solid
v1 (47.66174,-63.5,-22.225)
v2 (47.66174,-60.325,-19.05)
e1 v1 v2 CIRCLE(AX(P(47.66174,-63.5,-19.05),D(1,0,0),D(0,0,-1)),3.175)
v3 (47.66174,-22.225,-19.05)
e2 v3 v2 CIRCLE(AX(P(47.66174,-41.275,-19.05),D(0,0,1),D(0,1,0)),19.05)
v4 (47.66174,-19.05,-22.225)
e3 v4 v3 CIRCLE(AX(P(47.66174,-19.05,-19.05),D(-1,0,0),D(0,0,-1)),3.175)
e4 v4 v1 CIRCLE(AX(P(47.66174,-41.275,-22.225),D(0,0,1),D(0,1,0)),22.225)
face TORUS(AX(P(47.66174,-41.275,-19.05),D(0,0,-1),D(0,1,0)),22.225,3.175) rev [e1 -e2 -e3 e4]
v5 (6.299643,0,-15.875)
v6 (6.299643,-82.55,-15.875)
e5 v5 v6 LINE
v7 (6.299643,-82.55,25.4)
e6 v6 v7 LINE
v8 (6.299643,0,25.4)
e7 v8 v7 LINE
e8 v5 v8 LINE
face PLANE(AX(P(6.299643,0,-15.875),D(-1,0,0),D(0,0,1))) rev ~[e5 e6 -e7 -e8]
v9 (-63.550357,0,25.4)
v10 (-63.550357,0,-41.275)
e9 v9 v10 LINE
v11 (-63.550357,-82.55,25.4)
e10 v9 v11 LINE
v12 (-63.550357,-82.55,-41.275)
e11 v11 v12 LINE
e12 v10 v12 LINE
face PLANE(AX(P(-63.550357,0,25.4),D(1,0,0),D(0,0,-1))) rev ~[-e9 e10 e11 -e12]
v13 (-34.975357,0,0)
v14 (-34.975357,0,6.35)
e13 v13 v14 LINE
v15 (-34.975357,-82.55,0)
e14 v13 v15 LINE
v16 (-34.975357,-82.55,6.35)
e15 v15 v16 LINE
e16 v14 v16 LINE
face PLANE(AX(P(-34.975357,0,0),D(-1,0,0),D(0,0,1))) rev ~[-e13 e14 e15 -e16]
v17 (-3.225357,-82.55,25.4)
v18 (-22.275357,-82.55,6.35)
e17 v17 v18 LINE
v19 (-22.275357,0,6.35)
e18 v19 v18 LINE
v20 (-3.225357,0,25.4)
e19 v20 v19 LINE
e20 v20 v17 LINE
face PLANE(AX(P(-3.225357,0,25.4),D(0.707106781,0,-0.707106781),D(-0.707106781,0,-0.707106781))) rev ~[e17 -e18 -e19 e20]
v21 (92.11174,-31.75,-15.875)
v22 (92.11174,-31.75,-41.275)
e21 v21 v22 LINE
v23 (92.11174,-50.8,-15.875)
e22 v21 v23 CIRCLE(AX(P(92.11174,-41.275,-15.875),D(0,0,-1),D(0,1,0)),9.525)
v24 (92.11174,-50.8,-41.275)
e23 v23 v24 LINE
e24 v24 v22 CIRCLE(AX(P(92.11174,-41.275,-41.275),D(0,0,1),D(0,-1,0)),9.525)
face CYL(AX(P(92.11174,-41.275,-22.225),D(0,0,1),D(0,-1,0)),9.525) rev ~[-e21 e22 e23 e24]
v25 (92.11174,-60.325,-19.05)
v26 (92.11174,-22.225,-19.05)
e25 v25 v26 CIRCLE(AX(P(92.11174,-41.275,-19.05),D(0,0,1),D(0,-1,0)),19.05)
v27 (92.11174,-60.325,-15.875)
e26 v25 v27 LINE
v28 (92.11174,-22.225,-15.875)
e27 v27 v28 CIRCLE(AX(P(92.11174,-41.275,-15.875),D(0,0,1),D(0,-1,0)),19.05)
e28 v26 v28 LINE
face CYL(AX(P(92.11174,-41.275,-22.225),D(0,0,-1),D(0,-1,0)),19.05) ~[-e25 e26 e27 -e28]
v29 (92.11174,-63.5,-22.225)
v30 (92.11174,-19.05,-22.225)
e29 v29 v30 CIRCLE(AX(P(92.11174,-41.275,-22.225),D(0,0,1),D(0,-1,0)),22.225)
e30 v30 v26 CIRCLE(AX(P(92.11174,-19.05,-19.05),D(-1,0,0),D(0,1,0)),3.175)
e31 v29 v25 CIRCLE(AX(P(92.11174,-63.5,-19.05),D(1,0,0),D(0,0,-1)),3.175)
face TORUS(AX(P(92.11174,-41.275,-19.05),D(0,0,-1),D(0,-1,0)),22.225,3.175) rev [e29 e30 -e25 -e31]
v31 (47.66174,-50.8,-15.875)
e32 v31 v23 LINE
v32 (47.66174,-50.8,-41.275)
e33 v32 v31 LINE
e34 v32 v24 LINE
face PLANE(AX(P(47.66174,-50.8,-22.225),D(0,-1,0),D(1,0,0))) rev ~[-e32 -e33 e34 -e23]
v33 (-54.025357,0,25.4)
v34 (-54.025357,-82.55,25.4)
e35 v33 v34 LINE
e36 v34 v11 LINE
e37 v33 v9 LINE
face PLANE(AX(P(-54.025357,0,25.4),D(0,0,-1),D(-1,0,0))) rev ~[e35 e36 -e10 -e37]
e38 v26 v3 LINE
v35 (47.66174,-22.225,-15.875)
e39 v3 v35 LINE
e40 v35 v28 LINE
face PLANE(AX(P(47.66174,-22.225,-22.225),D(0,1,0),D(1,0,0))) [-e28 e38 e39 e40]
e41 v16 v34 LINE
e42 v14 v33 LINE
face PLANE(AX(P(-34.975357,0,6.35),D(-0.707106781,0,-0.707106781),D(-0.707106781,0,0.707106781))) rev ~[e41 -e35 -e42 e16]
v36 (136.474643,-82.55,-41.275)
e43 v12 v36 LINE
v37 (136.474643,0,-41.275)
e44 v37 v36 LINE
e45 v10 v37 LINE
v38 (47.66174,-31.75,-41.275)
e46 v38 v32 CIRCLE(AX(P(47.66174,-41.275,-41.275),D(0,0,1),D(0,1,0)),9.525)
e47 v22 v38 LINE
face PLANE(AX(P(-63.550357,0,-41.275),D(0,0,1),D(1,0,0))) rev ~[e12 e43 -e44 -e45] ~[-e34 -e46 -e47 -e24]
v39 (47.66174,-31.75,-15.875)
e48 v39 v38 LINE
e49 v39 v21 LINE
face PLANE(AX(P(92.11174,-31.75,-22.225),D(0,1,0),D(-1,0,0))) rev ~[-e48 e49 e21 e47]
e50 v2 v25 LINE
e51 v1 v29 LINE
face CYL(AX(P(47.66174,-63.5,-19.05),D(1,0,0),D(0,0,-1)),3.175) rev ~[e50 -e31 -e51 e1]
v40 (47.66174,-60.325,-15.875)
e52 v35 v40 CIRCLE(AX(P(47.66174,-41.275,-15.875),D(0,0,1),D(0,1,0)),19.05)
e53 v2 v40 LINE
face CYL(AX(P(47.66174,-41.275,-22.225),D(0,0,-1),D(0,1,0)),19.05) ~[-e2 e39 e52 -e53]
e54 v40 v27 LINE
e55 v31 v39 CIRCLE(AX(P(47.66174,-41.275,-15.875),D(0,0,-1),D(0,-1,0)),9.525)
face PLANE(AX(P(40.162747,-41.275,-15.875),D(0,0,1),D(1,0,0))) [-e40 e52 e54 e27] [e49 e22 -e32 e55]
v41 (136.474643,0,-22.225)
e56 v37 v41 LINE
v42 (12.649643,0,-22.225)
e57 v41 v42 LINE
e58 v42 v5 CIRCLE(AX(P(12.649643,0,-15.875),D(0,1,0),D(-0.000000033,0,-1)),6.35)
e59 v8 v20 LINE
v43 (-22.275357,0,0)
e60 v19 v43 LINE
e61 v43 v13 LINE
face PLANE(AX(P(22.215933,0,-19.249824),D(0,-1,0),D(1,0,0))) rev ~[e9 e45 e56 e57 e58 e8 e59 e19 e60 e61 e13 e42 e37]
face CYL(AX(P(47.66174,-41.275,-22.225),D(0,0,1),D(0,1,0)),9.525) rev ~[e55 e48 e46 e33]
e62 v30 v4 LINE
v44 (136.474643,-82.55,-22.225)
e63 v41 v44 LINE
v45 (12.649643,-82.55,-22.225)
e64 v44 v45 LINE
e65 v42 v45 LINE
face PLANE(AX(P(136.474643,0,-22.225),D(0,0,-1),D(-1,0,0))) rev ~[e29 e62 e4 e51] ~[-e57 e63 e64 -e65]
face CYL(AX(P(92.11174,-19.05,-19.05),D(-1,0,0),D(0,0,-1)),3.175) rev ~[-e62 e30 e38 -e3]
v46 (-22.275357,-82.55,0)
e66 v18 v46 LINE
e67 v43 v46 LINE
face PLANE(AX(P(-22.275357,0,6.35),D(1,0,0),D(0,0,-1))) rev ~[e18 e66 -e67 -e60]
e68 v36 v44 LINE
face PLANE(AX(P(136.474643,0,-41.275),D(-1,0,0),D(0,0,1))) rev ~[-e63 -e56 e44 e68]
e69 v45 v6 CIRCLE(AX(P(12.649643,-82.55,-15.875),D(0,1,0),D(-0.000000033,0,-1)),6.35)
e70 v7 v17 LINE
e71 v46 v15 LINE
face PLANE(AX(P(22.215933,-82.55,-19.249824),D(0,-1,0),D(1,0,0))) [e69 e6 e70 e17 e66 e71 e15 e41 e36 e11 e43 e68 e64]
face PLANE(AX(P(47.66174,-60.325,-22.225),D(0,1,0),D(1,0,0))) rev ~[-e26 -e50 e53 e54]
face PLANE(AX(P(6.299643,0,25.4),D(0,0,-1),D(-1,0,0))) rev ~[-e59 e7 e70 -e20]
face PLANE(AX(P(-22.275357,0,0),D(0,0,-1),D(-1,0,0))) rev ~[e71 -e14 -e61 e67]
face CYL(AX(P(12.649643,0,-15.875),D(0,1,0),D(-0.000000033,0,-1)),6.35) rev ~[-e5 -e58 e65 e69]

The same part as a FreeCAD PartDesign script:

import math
import FreeCAD as App
import Part
import Sketcher
from FreeCAD import Vector
Q = App.Units.Quantity


def edges_at(feature, points):
    """Names of the edges that pass closest to the given points."""
    edges = feature.Shape.Edges
    near = lambda p: min(range(len(edges)), key=lambda i: edges[i].distToShape(Part.Vertex(*p))[0])
    return sorted({f"Edge{near(p) + 1}" for p in points})

doc = App.newDocument("Part")
body = doc.addObject("PartDesign::Body", "Body")

# Sketch on XZ plane
sketch1 = body.newObject("Sketcher::SketchObject", "Sketch")
sketch1.AttachmentSupport = (doc.getObject("XZ_Plane"), [""])
sketch1.MapMode = "FlatFace"
sketch1.addGeometry(Part.LineSegment(Vector(-54.025357, 25.4, 0), Vector(-63.550357, 25.4, 0)), False)
sketch1.addGeometry(Part.LineSegment(Vector(-63.550357, 25.4, 0), Vector(-63.550357, -41.275, 0)), False)
sketch1.addGeometry(Part.LineSegment(Vector(-63.550357, -41.275, 0), Vector(136.474643, -41.275, 0)), False)
sketch1.addGeometry(Part.LineSegment(Vector(136.474643, -41.275, 0), Vector(136.474643, -22.225, 0)), False)
sketch1.addGeometry(Part.LineSegment(Vector(136.474643, -22.225, 0), Vector(12.649643, -22.225, 0)), False)
sketch1.addGeometry(Part.ArcOfCircle(Part.Circle(Vector(12.649643, -15.875, 0), Vector(0, 0, 1), 6.35), math.radians(-179.999998), math.radians(-90.000002)), False)
sketch1.addGeometry(Part.LineSegment(Vector(6.299643, -15.875, 0), Vector(6.299643, 25.4, 0)), False)
sketch1.addGeometry(Part.LineSegment(Vector(6.299643, 25.4, 0), Vector(-3.225357, 25.4, 0)), False)
sketch1.addGeometry(Part.LineSegment(Vector(-3.225357, 25.4, 0), Vector(-22.275357, 6.35, 0)), False)
sketch1.addGeometry(Part.LineSegment(Vector(-22.275357, 6.35, 0), Vector(-22.275357, 0, 0)), False)
sketch1.addGeometry(Part.LineSegment(Vector(-22.275357, 0, 0), Vector(-34.975357, 0, 0)), False)
sketch1.addGeometry(Part.LineSegment(Vector(-34.975357, 0, 0), Vector(-34.975357, 6.35, 0)), False)
sketch1.addGeometry(Part.LineSegment(Vector(-34.975357, 6.35, 0), Vector(-54.025357, 25.4, 0)), False)
sketch1.addConstraint(Sketcher.Constraint("Coincident", 0, 2, 1, 1))
sketch1.addConstraint(Sketcher.Constraint("Coincident", 1, 2, 2, 1))
sketch1.addConstraint(Sketcher.Constraint("Coincident", 2, 2, 3, 1))
sketch1.addConstraint(Sketcher.Constraint("Coincident", 3, 2, 4, 1))
sketch1.addConstraint(Sketcher.Constraint("Tangent", 4, 2, 5, 2))
sketch1.addConstraint(Sketcher.Constraint("Tangent", 5, 1, 6, 1))
sketch1.addConstraint(Sketcher.Constraint("Coincident", 6, 2, 7, 1))
sketch1.addConstraint(Sketcher.Constraint("Coincident", 7, 2, 8, 1))
sketch1.addConstraint(Sketcher.Constraint("Coincident", 8, 2, 9, 1))
sketch1.addConstraint(Sketcher.Constraint("Coincident", 9, 2, 10, 1))
sketch1.addConstraint(Sketcher.Constraint("Coincident", 10, 2, 11, 1))
sketch1.addConstraint(Sketcher.Constraint("Coincident", 11, 2, 12, 1))
sketch1.addConstraint(Sketcher.Constraint("Coincident", 12, 2, 0, 1))
sketch1.addConstraint(Sketcher.Constraint("Horizontal", 0))
sketch1.addConstraint(Sketcher.Constraint("Vertical", 1))
sketch1.addConstraint(Sketcher.Constraint("Horizontal", 2))
sketch1.addConstraint(Sketcher.Constraint("Vertical", 3))
sketch1.addConstraint(Sketcher.Constraint("Horizontal", 4))
sketch1.addConstraint(Sketcher.Constraint("Vertical", 6))
sketch1.addConstraint(Sketcher.Constraint("Horizontal", 7))
sketch1.addConstraint(Sketcher.Constraint("Vertical", 9))
sketch1.addConstraint(Sketcher.Constraint("Horizontal", 10))
sketch1.addConstraint(Sketcher.Constraint("Vertical", 11))
sketch1.addConstraint(Sketcher.Constraint("PointOnObject", 9, 2, -1))
sketch1.addConstraint(Sketcher.Constraint("Perpendicular", 8, 12))
sketch1.addConstraint(Sketcher.Constraint("Horizontal", 0, 2, 6, 2))
sketch1.addConstraint(Sketcher.Constraint("Horizontal", 8, 2, 11, 2))
sketch1.addConstraint(Sketcher.Constraint("Equal", 0, 7))
sketch1.addConstraint(Sketcher.Constraint("Equal", 8, 12))
sketch1.addConstraint(Sketcher.Constraint("Radius", 5, Q("0.25 in")))
sketch1.addConstraint(Sketcher.Constraint("DistanceX", 10, 2, 10, 1, Q("0.5 in")))
sketch1.addConstraint(Sketcher.Constraint("DistanceY", -1, 1, 0, 2, Q("1 in")))
sketch1.addConstraint(Sketcher.Constraint("DistanceX", 0, 2, 5, 3, Q("3 in")))
sketch1.addConstraint(Sketcher.Constraint("DistanceY", 1, 2, 5, 3, Q("1 in")))
sketch1.addConstraint(Sketcher.Constraint("DistanceY", 9, 2, 9, 1, Q("0.25 in")))
sketch1.addConstraint(Sketcher.Constraint("DistanceX", 2, 1, 2, 2, Q("7.875 in")))
sketch1.addConstraint(Sketcher.Constraint("DistanceY", 1, 2, 1, 1, Q("2.625 in")))
sketch1.addConstraint(Sketcher.Constraint("DistanceX", -1, 1, 5, 3, 12.649643))
pad1 = body.newObject("PartDesign::Pad", "Pad")
pad1.Profile = sketch1
pad1.Length = Q("3.25 in")

# Sketch on XY plane
sketch2 = body.newObject("Sketcher::SketchObject", "Sketch001")
sketch2.AttachmentSupport = (doc.getObject("XY_Plane"), [""])
sketch2.MapMode = "FlatFace"
sketch2.AttachmentOffset = App.Placement(Vector(0, 0, -0.875 * 25.4), App.Rotation())
sketch2.addGeometry(Part.ArcOfCircle(Part.Circle(Vector(47.66174, -41.275, 0), Vector(0, 0, 1), 19.05), math.radians(90), math.radians(270)), False)
sketch2.addGeometry(Part.LineSegment(Vector(47.66174, -60.325, 0), Vector(92.11174, -60.325, 0)), False)
sketch2.addGeometry(Part.ArcOfCircle(Part.Circle(Vector(92.11174, -41.275, 0), Vector(0, 0, 1), 19.05), math.radians(-90), math.radians(90)), False)
sketch2.addGeometry(Part.LineSegment(Vector(92.11174, -22.225, 0), Vector(47.66174, -22.225, 0)), False)
sketch2.addGeometry(Part.ArcOfCircle(Part.Circle(Vector(47.66174, -41.275, 0), Vector(0, 0, 1), 9.525), math.radians(90), math.radians(270)), False)
sketch2.addGeometry(Part.LineSegment(Vector(47.66174, -31.75, 0), Vector(92.11174, -31.75, 0)), False)
sketch2.addGeometry(Part.ArcOfCircle(Part.Circle(Vector(92.11174, -41.275, 0), Vector(0, 0, 1), 9.525), math.radians(-90), math.radians(90)), False)
sketch2.addGeometry(Part.LineSegment(Vector(92.11174, -50.8, 0), Vector(47.66174, -50.8, 0)), False)
sketch2.addConstraint(Sketcher.Constraint("Tangent", 0, 2, 1, 1))
sketch2.addConstraint(Sketcher.Constraint("Tangent", 1, 2, 2, 1))
sketch2.addConstraint(Sketcher.Constraint("Tangent", 2, 2, 3, 1))
sketch2.addConstraint(Sketcher.Constraint("Tangent", 3, 2, 0, 1))
sketch2.addConstraint(Sketcher.Constraint("Tangent", 4, 1, 5, 1))
sketch2.addConstraint(Sketcher.Constraint("Tangent", 5, 2, 6, 2))
sketch2.addConstraint(Sketcher.Constraint("Tangent", 6, 1, 7, 1))
sketch2.addConstraint(Sketcher.Constraint("Tangent", 7, 2, 4, 2))
sketch2.addConstraint(Sketcher.Constraint("Horizontal", 1))
sketch2.addConstraint(Sketcher.Constraint("Horizontal", 3))
sketch2.addConstraint(Sketcher.Constraint("Horizontal", 5))
sketch2.addConstraint(Sketcher.Constraint("Horizontal", 7))
sketch2.addConstraint(Sketcher.Constraint("Coincident", 4, 3, 0, 3))
sketch2.addConstraint(Sketcher.Constraint("Vertical", 6, 3, 1, 2))
sketch2.addConstraint(Sketcher.Constraint("Radius", 0, Q("0.75 in")))
sketch2.addConstraint(Sketcher.Constraint("DistanceY", 6, 1, -1, 1, Q("2 in")))
sketch2.addConstraint(Sketcher.Constraint("Radius", 4, Q("0.375 in")))
sketch2.addConstraint(Sketcher.Constraint("DistanceX", 1, 1, 1, 2, Q("1.75 in")))
sketch2.addConstraint(Sketcher.Constraint("DistanceX", -1, 1, 0, 3, 47.66174))
pad2 = body.newObject("PartDesign::Pad", "Pad001")
pad2.Profile = sketch2
pad2.Length = Q("0.25 in")

# Sketch on XY plane
sketch3 = body.newObject("Sketcher::SketchObject", "Sketch002")
sketch3.AttachmentSupport = (doc.getObject("XY_Plane"), [""])
sketch3.MapMode = "FlatFace"
sketch3.AttachmentOffset = App.Placement(Vector(0, 0, -0.875 * 25.4), App.Rotation())
sketch3.addGeometry(Part.LineSegment(Vector(47.66174, -50.8, 0), Vector(92.11174, -50.8, 0)), False)
sketch3.addGeometry(Part.ArcOfCircle(Part.Circle(Vector(92.11174, -41.275, 0), Vector(0, 0, 1), 9.525), math.radians(-90), math.radians(90)), False)
sketch3.addGeometry(Part.LineSegment(Vector(92.11174, -31.75, 0), Vector(47.66174, -31.75, 0)), False)
sketch3.addGeometry(Part.ArcOfCircle(Part.Circle(Vector(47.66174, -41.275, 0), Vector(0, 0, 1), 9.525), math.radians(90), math.radians(270)), False)
sketch3.addConstraint(Sketcher.Constraint("Tangent", 0, 2, 1, 1))
sketch3.addConstraint(Sketcher.Constraint("Tangent", 1, 2, 2, 1))
sketch3.addConstraint(Sketcher.Constraint("Tangent", 2, 2, 3, 1))
sketch3.addConstraint(Sketcher.Constraint("Tangent", 3, 2, 0, 1))
sketch3.addConstraint(Sketcher.Constraint("Horizontal", 0))
sketch3.addConstraint(Sketcher.Constraint("Horizontal", 2))
sketch3.addConstraint(Sketcher.Constraint("DistanceY", 0, 2, -1, 1, Q("2 in")))
sketch3.addConstraint(Sketcher.Constraint("Radius", 1, Q("0.375 in")))
sketch3.addConstraint(Sketcher.Constraint("DistanceX", 0, 1, 0, 2, Q("1.75 in")))
sketch3.addConstraint(Sketcher.Constraint("DistanceX", -1, 1, 1, 3, 92.11174))
pocket1 = body.newObject("PartDesign::Pocket", "Pocket")
pocket1.Profile = sketch3
pocket1.Length = Q("1 in")
doc.recompute()

fillet = body.newObject("PartDesign::Fillet", "Fillet")
fillet.Base = (pocket1, edges_at(pocket1, [(69.887, -60.325, -22.225)]))
fillet.Radius = Q("0.125 in")

doc.recompute()
